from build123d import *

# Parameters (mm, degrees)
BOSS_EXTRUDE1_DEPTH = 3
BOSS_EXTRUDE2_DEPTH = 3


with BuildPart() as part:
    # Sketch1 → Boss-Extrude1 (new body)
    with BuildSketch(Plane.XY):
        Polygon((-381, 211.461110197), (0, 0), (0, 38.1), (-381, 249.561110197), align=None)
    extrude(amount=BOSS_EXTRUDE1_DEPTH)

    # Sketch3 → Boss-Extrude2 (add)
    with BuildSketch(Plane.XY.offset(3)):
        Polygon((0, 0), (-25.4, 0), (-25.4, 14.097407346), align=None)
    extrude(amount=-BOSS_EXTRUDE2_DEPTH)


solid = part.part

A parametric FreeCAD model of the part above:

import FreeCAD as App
import Part
import Sketcher
Q = App.Units.Quantity

doc = App.newDocument("Part")
body = doc.addObject("PartDesign::Body", "Body")

sketch1 = doc.addObject("Sketcher::SketchObject", "Sketch")
body.addObject(sketch1)
sketch1.AttachmentSupport = (doc.XY_Plane, [""])
sketch1.MapMode = "FlatFace"
sketch1.addGeometry([
    Part.LineSegment(App.Vector(-381, 211.46111, 0), App.Vector(0, 0, 0)),
    Part.LineSegment(App.Vector(0, 0, 0), App.Vector(0, 38.1, 0)),
    Part.LineSegment(App.Vector(0, 38.1, 0), App.Vector(-381, 249.56111, 0)),
    Part.LineSegment(App.Vector(-381, 249.56111, 0), App.Vector(-381, 211.46111, 0)),
], False)
sketch1.addConstraint([
    Sketcher.Constraint("Coincident", 0, 2, 1, 1),
    Sketcher.Constraint("Coincident", 1, 2, 2, 1),
    Sketcher.Constraint("Coincident", 2, 2, 3, 1),
    Sketcher.Constraint("Coincident", 3, 2, 0, 1),
    Sketcher.Constraint("Vertical", 1),
    Sketcher.Constraint("Vertical", 3),
    Sketcher.Constraint("Coincident", 0, 2, -1, 1),
    Sketcher.Constraint("Parallel", 0, 2),
    Sketcher.Constraint("DistanceY", 1, 1, 1, 2, Q("1.5 in")),
    Sketcher.Constraint("DistanceX", 2, 2, -1, 1, Q("15 in")),
    Sketcher.Constraint("DistanceY", -1, 1, 2, 2, Q("249.56111 mm")),
])
pad1 = doc.addObject("PartDesign::Pad", "Pad")
body.addObject(pad1)
pad1.Profile = sketch1
pad1.Length = 3

sketch2 = doc.addObject("Sketcher::SketchObject", "Sketch001")
body.addObject(sketch2)
sketch2.AttachmentSupport = (doc.XY_Plane, [""])
sketch2.MapMode = "FlatFace"
sketch2.AttachmentOffset = App.Placement(App.Vector(0, 0, 3), App.Rotation())
sketch2.addGeometry([
    Part.LineSegment(App.Vector(-25.4, 0, 0), App.Vector(0, 0, 0)),
    Part.LineSegment(App.Vector(0, 0, 0), App.Vector(-25.4, 14.097407, 0)),
    Part.LineSegment(App.Vector(-25.4, 14.097407, 0), App.Vector(-25.4, 0, 0)),
], False)
sketch2.addConstraint([
    Sketcher.Constraint("Coincident", 0, 2, 1, 1),
    Sketcher.Constraint("Coincident", 1, 2, 2, 1),
    Sketcher.Constraint("Coincident", 2, 2, 0, 1),
    Sketcher.Constraint("Horizontal", 0),
    Sketcher.Constraint("Vertical", 2),
    Sketcher.Constraint("Coincident", 0, 2, -1, 1),
    Sketcher.Constraint("DistanceX", 0, 1, 0, 2, Q("1 in")),
    Sketcher.Constraint("DistanceY", 2, 2, 2, 1, Q("14.097407 mm")),
])
pad2 = doc.addObject("PartDesign::Pad", "Pad001")
body.addObject(pad2)
pad2.Profile = sketch2
pad2.Length = 3
pad2.Reversed = True

doc.recompute()
